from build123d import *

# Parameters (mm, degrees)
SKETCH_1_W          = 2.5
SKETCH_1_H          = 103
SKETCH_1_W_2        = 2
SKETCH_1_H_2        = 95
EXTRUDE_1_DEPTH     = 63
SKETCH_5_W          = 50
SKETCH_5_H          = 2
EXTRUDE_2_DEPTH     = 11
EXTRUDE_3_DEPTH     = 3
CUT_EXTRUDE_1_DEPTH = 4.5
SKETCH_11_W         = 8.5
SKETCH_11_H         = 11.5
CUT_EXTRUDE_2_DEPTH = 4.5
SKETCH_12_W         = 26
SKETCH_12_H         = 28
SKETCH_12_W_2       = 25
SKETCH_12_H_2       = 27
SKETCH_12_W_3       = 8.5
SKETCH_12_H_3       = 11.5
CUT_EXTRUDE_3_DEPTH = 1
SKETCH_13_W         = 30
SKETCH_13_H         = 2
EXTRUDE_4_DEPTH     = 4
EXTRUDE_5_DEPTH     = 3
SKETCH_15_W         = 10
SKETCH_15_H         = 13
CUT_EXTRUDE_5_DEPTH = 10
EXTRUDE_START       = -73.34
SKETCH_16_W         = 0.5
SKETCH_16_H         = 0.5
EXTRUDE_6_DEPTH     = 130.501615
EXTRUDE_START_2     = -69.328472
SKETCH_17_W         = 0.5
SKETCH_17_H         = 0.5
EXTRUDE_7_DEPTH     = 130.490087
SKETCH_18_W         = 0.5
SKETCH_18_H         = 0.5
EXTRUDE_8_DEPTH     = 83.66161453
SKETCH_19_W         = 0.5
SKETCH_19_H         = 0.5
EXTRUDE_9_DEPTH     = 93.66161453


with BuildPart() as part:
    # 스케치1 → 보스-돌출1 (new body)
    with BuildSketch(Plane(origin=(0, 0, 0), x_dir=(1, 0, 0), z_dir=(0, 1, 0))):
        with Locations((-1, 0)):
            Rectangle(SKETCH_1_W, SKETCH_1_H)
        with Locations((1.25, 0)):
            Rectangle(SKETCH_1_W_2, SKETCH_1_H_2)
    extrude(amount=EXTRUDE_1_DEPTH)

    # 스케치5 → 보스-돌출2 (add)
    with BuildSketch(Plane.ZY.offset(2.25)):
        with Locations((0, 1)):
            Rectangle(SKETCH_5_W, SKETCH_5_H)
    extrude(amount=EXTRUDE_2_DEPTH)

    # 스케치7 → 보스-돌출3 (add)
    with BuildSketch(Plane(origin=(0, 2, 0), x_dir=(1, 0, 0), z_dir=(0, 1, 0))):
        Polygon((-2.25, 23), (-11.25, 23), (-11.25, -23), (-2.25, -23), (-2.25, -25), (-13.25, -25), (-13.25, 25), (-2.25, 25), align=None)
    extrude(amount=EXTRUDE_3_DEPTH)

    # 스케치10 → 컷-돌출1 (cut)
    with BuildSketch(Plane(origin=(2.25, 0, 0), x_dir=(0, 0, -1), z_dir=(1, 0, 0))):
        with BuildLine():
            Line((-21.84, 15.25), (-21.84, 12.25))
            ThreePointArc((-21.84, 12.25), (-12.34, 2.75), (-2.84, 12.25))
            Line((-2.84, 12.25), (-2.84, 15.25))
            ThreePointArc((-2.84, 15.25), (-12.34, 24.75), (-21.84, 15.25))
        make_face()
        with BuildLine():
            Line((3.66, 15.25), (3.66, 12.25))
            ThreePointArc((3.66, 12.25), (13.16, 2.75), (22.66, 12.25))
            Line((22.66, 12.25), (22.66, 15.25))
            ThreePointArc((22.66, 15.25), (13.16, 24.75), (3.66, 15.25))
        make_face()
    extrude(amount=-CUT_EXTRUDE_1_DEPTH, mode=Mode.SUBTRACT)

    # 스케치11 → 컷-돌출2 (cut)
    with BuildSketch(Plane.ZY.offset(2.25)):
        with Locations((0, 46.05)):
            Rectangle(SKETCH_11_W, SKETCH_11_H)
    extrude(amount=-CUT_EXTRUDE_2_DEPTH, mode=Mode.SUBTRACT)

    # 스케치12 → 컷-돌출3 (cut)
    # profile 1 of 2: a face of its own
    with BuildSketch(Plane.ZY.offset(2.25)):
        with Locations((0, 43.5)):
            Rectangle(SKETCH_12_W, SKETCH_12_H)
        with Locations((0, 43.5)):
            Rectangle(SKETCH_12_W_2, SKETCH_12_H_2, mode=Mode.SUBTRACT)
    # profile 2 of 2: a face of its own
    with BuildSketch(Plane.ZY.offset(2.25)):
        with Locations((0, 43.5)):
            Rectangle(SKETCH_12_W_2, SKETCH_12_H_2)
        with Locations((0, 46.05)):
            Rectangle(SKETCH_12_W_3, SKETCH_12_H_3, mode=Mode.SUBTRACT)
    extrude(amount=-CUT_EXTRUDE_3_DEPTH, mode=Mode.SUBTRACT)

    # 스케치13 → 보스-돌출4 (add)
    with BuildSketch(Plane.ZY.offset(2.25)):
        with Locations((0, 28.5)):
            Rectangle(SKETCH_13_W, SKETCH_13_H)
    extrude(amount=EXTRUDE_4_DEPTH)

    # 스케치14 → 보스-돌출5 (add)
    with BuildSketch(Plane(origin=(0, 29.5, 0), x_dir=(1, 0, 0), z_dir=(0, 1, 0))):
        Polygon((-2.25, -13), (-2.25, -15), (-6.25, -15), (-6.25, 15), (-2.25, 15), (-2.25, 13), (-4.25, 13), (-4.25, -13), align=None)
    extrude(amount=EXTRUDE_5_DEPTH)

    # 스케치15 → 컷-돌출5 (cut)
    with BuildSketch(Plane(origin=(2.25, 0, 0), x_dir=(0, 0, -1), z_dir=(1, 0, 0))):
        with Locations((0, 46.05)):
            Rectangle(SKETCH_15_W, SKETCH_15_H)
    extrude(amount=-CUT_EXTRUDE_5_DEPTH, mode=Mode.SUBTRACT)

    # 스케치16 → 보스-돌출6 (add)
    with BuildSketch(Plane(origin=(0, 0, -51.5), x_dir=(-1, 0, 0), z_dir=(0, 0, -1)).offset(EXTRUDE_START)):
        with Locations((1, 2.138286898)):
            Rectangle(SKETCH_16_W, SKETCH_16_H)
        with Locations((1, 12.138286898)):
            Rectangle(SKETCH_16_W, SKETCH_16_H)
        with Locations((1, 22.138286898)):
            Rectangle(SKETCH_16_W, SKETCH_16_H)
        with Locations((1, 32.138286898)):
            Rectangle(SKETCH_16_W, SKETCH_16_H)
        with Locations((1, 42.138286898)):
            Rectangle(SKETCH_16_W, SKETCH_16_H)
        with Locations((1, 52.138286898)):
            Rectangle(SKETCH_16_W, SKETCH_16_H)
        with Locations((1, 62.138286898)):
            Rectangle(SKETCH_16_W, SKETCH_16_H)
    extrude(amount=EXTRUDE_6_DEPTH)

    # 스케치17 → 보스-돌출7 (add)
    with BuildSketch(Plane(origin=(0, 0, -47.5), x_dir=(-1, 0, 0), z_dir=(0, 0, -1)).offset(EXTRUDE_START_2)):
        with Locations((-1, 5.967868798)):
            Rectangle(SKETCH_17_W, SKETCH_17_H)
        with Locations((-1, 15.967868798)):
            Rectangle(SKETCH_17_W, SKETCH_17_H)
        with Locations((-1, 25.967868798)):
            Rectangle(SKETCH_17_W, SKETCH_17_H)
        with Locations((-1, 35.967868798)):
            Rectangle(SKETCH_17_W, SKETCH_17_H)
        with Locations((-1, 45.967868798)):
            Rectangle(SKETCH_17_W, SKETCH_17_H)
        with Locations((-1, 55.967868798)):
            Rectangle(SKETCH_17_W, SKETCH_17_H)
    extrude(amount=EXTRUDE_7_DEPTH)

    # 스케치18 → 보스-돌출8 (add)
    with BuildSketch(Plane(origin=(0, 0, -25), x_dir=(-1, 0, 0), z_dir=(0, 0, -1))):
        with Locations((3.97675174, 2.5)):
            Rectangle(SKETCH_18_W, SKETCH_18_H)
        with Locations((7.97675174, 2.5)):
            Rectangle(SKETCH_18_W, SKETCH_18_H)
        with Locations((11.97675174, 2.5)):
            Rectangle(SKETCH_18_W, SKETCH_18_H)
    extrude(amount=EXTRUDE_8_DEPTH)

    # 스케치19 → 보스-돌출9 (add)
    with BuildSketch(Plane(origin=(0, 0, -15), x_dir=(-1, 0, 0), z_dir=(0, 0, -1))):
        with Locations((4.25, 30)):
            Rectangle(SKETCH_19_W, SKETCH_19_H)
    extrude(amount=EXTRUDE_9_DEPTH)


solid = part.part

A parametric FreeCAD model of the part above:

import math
import FreeCAD as App
import Part
import Sketcher
from FreeCAD import Vector


def add_polygon(sketch, points):
    """Adds a closed chain of lines whose ends are joined by coincident constraints."""
    first, n = sketch.GeometryCount, len(points)
    for a, b in zip(points, points[1:] + points[:1]):
        sketch.addGeometry(Part.LineSegment(App.Vector(*a, 0), App.Vector(*b, 0)), False)
    for i in range(n):
        sketch.addConstraint(Sketcher.Constraint("Coincident", first + i, 2, first + (i + 1) % n, 1))

doc = App.newDocument("Part")
params = doc.addObject("Spreadsheet::Sheet", "Params")
for row, (alias, value) in enumerate([
    ("sketch1_width", "2 mm"),
    ("sketch1_height", "103 mm"),
    ("sketch1_height2", "4 mm"),
    ("sketch1_width2", "2.5 mm"),
    ("pad1_length", "63 mm"),
    ("sketch2_width", "2 mm"),
    ("sketch2_height", "50 mm"),
    ("pad2_length", "11 mm"),
    ("sketch3_width", "9 mm"),
    ("sketch3_width2", "11 mm"),
    ("sketch3_height", "2 mm"),
    ("sketch3_height2", "50 mm"),
    ("pad3_length", "3 mm"),
    ("sketch4_radius", "9.5 mm"),
    ("sketch4_width", "3 mm"),
    ("pocket1_length", "4.5 mm"),
    ("sketch5_width", "11.5 mm"),
    ("sketch5_height", "8.5 mm"),
    ("pocket2_length", "4.5 mm"),
    ("sketch6_width", "28 mm"),
    ("sketch6_height", "26 mm"),
    ("sketch6_width2", "11.5 mm"),
    ("sketch6_height2", "8.5 mm"),
    ("pocket3_length", "1 mm"),
    ("sketch7_width", "2 mm"),
    ("sketch7_height", "30 mm"),
    ("pad4_length", "4 mm"),
    ("sketch8_width", "2 mm"),
    ("sketch8_width2", "4 mm"),
    ("sketch8_height", "26 mm"),
    ("pad5_length", "3 mm"),
    ("sketch9_width", "13 mm"),
    ("sketch9_height", "10 mm"),
    ("pocket4_length", "10 mm"),
    ("sketch10_width", "0.5 mm"),
    ("pad6_length", "130.501615 mm"),
    ("sketch11_width", "0.5 mm"),
    ("pad7_length", "130.490087 mm"),
    ("sketch12_width", "0.5 mm"),
    ("pad8_length", "83.661615 mm"),
    ("sketch13_width", "0.5 mm"),
    ("pad9_length", "93.661615 mm"),
], start=1):
    params.set(f"A{row}", alias)
    params.set(f"B{row}", "=" + value)
    params.setAlias(f"B{row}", alias)

body = doc.addObject("PartDesign::Body", "Body")

# Sketch on XZ plane
sketch1 = doc.addObject("Sketcher::SketchObject", "Sketch")
body.addObject(sketch1)
sketch1.AttachmentSupport = (doc.XZ_Plane, [""])
sketch1.MapMode = "FlatFace"
add_polygon(sketch1, [(-2.2, -51.5), (-2.2, 51.5), (0.2, 51.5), (0.2, 47.5), (2.2, 47.5), (2.2, -47.5), (0.2, -47.5), (0.2, -51.5)])  # lines 0-7
sketch1.addConstraint(Sketcher.Constraint("Vertical", 0))
sketch1.addConstraint(Sketcher.Constraint("Horizontal", 1))
sketch1.addConstraint(Sketcher.Constraint("Vertical", 2))
sketch1.addConstraint(Sketcher.Constraint("Horizontal", 3))
sketch1.addConstraint(Sketcher.Constraint("Vertical", 4))
sketch1.addConstraint(Sketcher.Constraint("Horizontal", 5))
sketch1.addConstraint(Sketcher.Constraint("Vertical", 6))
sketch1.addConstraint(Sketcher.Constraint("Horizontal", 7))
sketch1.addConstraint(Sketcher.Constraint("Symmetric", 2, 2, 5, 2, -1))
sketch1.addConstraint(Sketcher.Constraint("Equal", 2, 6))
sketch1.addConstraint(Sketcher.Constraint("DistanceX", 3, 1, 3, 2, 2.0))
sketch1.addConstraint(Sketcher.Constraint("DistanceY", 0, 1, 0, 2, 103.0))
sketch1.addConstraint(Sketcher.Constraint("DistanceY", 2, 2, 2, 1, 4.0))
sketch1.addConstraint(Sketcher.Constraint("DistanceX", 1, 1, 1, 2, 2.5))
sketch1.addConstraint(Sketcher.Constraint("DistanceX", 0, 2, -1, 1, 2.25))
sketch1.setExpression("Constraints[18]", "Params.sketch1_width")
sketch1.setExpression("Constraints[19]", "Params.sketch1_height")
sketch1.setExpression("Constraints[20]", "Params.sketch1_height2")
sketch1.setExpression("Constraints[21]", "Params.sketch1_width2")
pad1 = doc.addObject("PartDesign::Pad", "Pad")
body.addObject(pad1)
pad1.Profile = sketch1
pad1.setExpression("Length", "Params.pad1_length")
pad1.Reversed = True

# Sketch on YZ plane
sketch2 = doc.addObject("Sketcher::SketchObject", "Sketch001")
body.addObject(sketch2)
sketch2.AttachmentSupport = (doc.YZ_Plane, [""])
sketch2.MapMode = "FlatFace"
sketch2.AttachmentOffset = App.Placement(Vector(0, 0, -2.25), App.Rotation())
add_polygon(sketch2, [(2, -25), (0, -25), (0, 25), (2, 25)])  # lines 0-3
sketch2.addConstraint(Sketcher.Constraint("Horizontal", 0))
sketch2.addConstraint(Sketcher.Constraint("Vertical", 1))
sketch2.addConstraint(Sketcher.Constraint("Horizontal", 2))
sketch2.addConstraint(Sketcher.Constraint("Vertical", 3))
sketch2.addConstraint(Sketcher.Constraint("Symmetric", 0, 2, 1, 2, -1, 1))
sketch2.addConstraint(Sketcher.Constraint("DistanceX", 0, 2, 0, 1, 2.0))
sketch2.addConstraint(Sketcher.Constraint("DistanceY", 1, 1, 1, 2, 50.0))
sketch2.setExpression("Constraints[9]", "Params.sketch2_width")
sketch2.setExpression("Constraints[10]", "Params.sketch2_height")
pad2 = doc.addObject("PartDesign::Pad", "Pad001")
body.addObject(pad2)
pad2.Profile = sketch2
pad2.setExpression("Length", "Params.pad2_length")
pad2.Reversed = True

# Sketch on XZ plane
sketch3 = doc.addObject("Sketcher::SketchObject", "Sketch002")
body.addObject(sketch3)
sketch3.AttachmentSupport = (doc.XZ_Plane, [""])
sketch3.MapMode = "FlatFace"
sketch3.AttachmentOffset = App.Placement(Vector(0, 0, -2), App.Rotation())
add_polygon(sketch3, [(-11.2, -23), (-2.2, -23), (-2.2, -25), (-13.2, -25), (-13.2, 25), (-2.2, 25), (-2.2, 23), (-11.2, 23)])  # lines 0-7
sketch3.addConstraint(Sketcher.Constraint("Horizontal", 0))
sketch3.addConstraint(Sketcher.Constraint("Vertical", 1))
sketch3.addConstraint(Sketcher.Constraint("Horizontal", 2))
sketch3.addConstraint(Sketcher.Constraint("Vertical", 3))
sketch3.addConstraint(Sketcher.Constraint("Horizontal", 4))
sketch3.addConstraint(Sketcher.Constraint("Vertical", 5))
sketch3.addConstraint(Sketcher.Constraint("Horizontal", 6))
sketch3.addConstraint(Sketcher.Constraint("Vertical", 7))
sketch3.addConstraint(Sketcher.Constraint("Symmetric", 1, 2, 4, 2, -1))
sketch3.addConstraint(Sketcher.Constraint("Equal", 1, 5))
sketch3.addConstraint(Sketcher.Constraint("DistanceX", 0, 1, 0, 2, 9.0))
sketch3.addConstraint(Sketcher.Constraint("DistanceX", 2, 2, 2, 1, 11.0))
sketch3.addConstraint(Sketcher.Constraint("DistanceY", 1, 2, 1, 1, 2.0))
sketch3.addConstraint(Sketcher.Constraint("DistanceY", 3, 1, 3, 2, 50.0))
sketch3.addConstraint(Sketcher.Constraint("DistanceX", 0, 2, -1, 1, 2.25))
sketch3.setExpression("Constraints[18]", "Params.sketch3_width")
sketch3.setExpression("Constraints[19]", "Params.sketch3_width2")
sketch3.setExpression("Constraints[20]", "Params.sketch3_height")
sketch3.setExpression("Constraints[21]", "Params.sketch3_height2")
pad3 = doc.addObject("PartDesign::Pad", "Pad002")
body.addObject(pad3)
pad3.Profile = sketch3
pad3.setExpression("Length", "Params.pad3_length")
pad3.Reversed = True

# Sketch on YZ plane
sketch4 = doc.addObject("Sketcher::SketchObject", "Sketch003")
body.addObject(sketch4)
sketch4.AttachmentSupport = (doc.YZ_Plane, [""])
sketch4.MapMode = "FlatFace"
sketch4.AttachmentOffset = App.Placement(Vector(0, 0, 2.25), App.Rotation())
sketch4.addGeometry(Part.LineSegment(Vector(15.2, 21.8, 0), Vector(12.2, 21.8, 0)), False)
sketch4.addGeometry(Part.ArcOfCircle(Part.Circle(Vector(12.2, 12.3, 0), Vector(0, 0, 1), 9.5), math.radians(90), math.radians(270)), False)
sketch4.addGeometry(Part.LineSegment(Vector(12.2, 2.8, 0), Vector(15.2, 2.8, 0)), False)
sketch4.addGeometry(Part.ArcOfCircle(Part.Circle(Vector(15.2, 12.3, 0), Vector(0, 0, 1), 9.5), math.radians(-90), math.radians(90)), False)
sketch4.addGeometry(Part.LineSegment(Vector(15.2, -3.7, 0), Vector(12.2, -3.7, 0)), False)
sketch4.addGeometry(Part.ArcOfCircle(Part.Circle(Vector(12.2, -13.2, 0), Vector(0, 0, 1), 9.5), math.radians(90), math.radians(270)), False)
sketch4.addGeometry(Part.LineSegment(Vector(12.2, -22.7, 0), Vector(15.2, -22.7, 0)), False)
sketch4.addGeometry(Part.ArcOfCircle(Part.Circle(Vector(15.2, -13.2, 0), Vector(0, 0, 1), 9.5), math.radians(-90), math.radians(90)), False)
sketch4.addConstraint(Sketcher.Constraint("Tangent", 0, 2, 1, 1))
sketch4.addConstraint(Sketcher.Constraint("Tangent", 1, 2, 2, 1))
sketch4.addConstraint(Sketcher.Constraint("Tangent", 2, 2, 3, 1))
sketch4.addConstraint(Sketcher.Constraint("Tangent", 3, 2, 0, 1))
sketch4.addConstraint(Sketcher.Constraint("Tangent", 4, 2, 5, 1))
sketch4.addConstraint(Sketcher.Constraint("Tangent", 5, 2, 6, 1))
sketch4.addConstraint(Sketcher.Constraint("Tangent", 6, 2, 7, 1))
sketch4.addConstraint(Sketcher.Constraint("Tangent", 7, 2, 4, 1))
sketch4.addConstraint(Sketcher.Constraint("Horizontal", 0))
sketch4.addConstraint(Sketcher.Constraint("Horizontal", 2))
sketch4.addConstraint(Sketcher.Constraint("Horizontal", 4))
sketch4.addConstraint(Sketcher.Constraint("Horizontal", 6))
sketch4.addConstraint(Sketcher.Constraint("Equal", 3, 5))
sketch4.addConstraint(Sketcher.Constraint("Vertical", 1, 3, 5, 3))
sketch4.addConstraint(Sketcher.Constraint("Vertical", 3, 3, 7, 3))
sketch4.addConstraint(Sketcher.Constraint("Radius", 1, 9.5))
sketch4.addConstraint(Sketcher.Constraint("DistanceX", 0, 2, 0, 1, 3.0))
sketch4.addConstraint(Sketcher.Constraint("DistanceY", 5, 3, 0, 2, 35.0))
sketch4.addConstraint(Sketcher.Constraint("DistanceX", -1, 1, 1, 3, 12.25))
sketch4.addConstraint(Sketcher.Constraint("DistanceY", -1, 1, 1, 3, 12.34))
sketch4.setExpression("Constraints[15]", "Params.sketch4_radius")
sketch4.setExpression("Constraints[16]", "Params.sketch4_width")
pocket1 = doc.addObject("PartDesign::Pocket", "Pocket")
body.addObject(pocket1)
pocket1.Profile = sketch4
pocket1.setExpression("Length", "Params.pocket1_length")

# Sketch on YZ plane
sketch5 = doc.addObject("Sketcher::SketchObject", "Sketch004")
body.addObject(sketch5)
sketch5.AttachmentSupport = (doc.YZ_Plane, [""])
sketch5.MapMode = "FlatFace"
sketch5.AttachmentOffset = App.Placement(Vector(0, 0, -2.25), App.Rotation())
add_polygon(sketch5, [(52, -4), (40, -4), (40, 4), (52, 4)])  # lines 0-3
sketch5.addConstraint(Sketcher.Constraint("Horizontal", 0))
sketch5.addConstraint(Sketcher.Constraint("Vertical", 1))
sketch5.addConstraint(Sketcher.Constraint("Horizontal", 2))
sketch5.addConstraint(Sketcher.Constraint("Vertical", 3))
sketch5.addConstraint(Sketcher.Constraint("DistanceX", 0, 2, 0, 1, 11.5))
sketch5.addConstraint(Sketcher.Constraint("DistanceY", 1, 1, 1, 2, 8.5))
sketch5.addConstraint(Sketcher.Constraint("DistanceX", -1, 1, 0, 2, 40.3))
sketch5.addConstraint(Sketcher.Constraint("DistanceY", 0, 2, -1, 1, 4.25))
sketch5.setExpression("Constraints[8]", "Params.sketch5_width")
sketch5.setExpression("Constraints[9]", "Params.sketch5_height")
pocket2 = doc.addObject("PartDesign::Pocket", "Pocket001")
body.addObject(pocket2)
pocket2.Profile = sketch5
pocket2.setExpression("Length", "Params.pocket2_length")
pocket2.Reversed = True

# Sketch on YZ plane
sketch6 = doc.addObject("Sketcher::SketchObject", "Sketch005")
body.addObject(sketch6)
sketch6.AttachmentSupport = (doc.YZ_Plane, [""])
sketch6.MapMode = "FlatFace"
sketch6.AttachmentOffset = App.Placement(Vector(0, 0, -2.25), App.Rotation())
add_polygon(sketch6, [(58, -13), (30, -13), (30, 13), (58, 13)])  # lines 0-3
add_polygon(sketch6, [(40, 4), (40, -4), (52, -4), (52, 4)])  # lines 4-7
sketch6.addConstraint(Sketcher.Constraint("Horizontal", 0))
sketch6.addConstraint(Sketcher.Constraint("Vertical", 1))
sketch6.addConstraint(Sketcher.Constraint("Horizontal", 2))
sketch6.addConstraint(Sketcher.Constraint("Vertical", 3))
sketch6.addConstraint(Sketcher.Constraint("Vertical", 4))
sketch6.addConstraint(Sketcher.Constraint("Horizontal", 5))
sketch6.addConstraint(Sketcher.Constraint("Vertical", 6))
sketch6.addConstraint(Sketcher.Constraint("Horizontal", 7))
sketch6.addConstraint(Sketcher.Constraint("DistanceX", 0, 2, 0, 1, 28.0))
sketch6.addConstraint(Sketcher.Constraint("DistanceY", 1, 1, 1, 2, 26.0))
sketch6.addConstraint(Sketcher.Constraint("DistanceX", 5, 1, 5, 2, 11.5))
sketch6.addConstraint(Sketcher.Constraint("DistanceY", 4, 2, 4, 1, 8.5))
sketch6.addConstraint(Sketcher.Constraint("DistanceY", 0, 2, -1, 1, 13.0))
sketch6.addConstraint(Sketcher.Constraint("DistanceX", -1, 1, 0, 2, 29.5))
sketch6.addConstraint(Sketcher.Constraint("DistanceX", -1, 1, 4, 2, 40.3))
sketch6.addConstraint(Sketcher.Constraint("DistanceY", 4, 2, -1, 1, 4.25))
sketch6.setExpression("Constraints[16]", "Params.sketch6_width")
sketch6.setExpression("Constraints[17]", "Params.sketch6_height")
sketch6.setExpression("Constraints[18]", "Params.sketch6_width2")
sketch6.setExpression("Constraints[19]", "Params.sketch6_height2")
pocket3 = doc.addObject("PartDesign::Pocket", "Pocket002")
body.addObject(pocket3)
pocket3.Profile = sketch6
pocket3.setExpression("Length", "Params.pocket3_length")
pocket3.Reversed = True

# Sketch on YZ plane
sketch7 = doc.addObject("Sketcher::SketchObject", "Sketch006")
body.addObject(sketch7)
sketch7.AttachmentSupport = (doc.YZ_Plane, [""])
sketch7.MapMode = "FlatFace"
sketch7.AttachmentOffset = App.Placement(Vector(0, 0, -2.25), App.Rotation())
add_polygon(sketch7, [(29.5, -15), (27.5, -15), (27.5, 15), (29.5, 15)])  # lines 0-3
sketch7.addConstraint(Sketcher.Constraint("Horizontal", 0))
sketch7.addConstraint(Sketcher.Constraint("Vertical", 1))
sketch7.addConstraint(Sketcher.Constraint("Horizontal", 2))
sketch7.addConstraint(Sketcher.Constraint("Vertical", 3))
sketch7.addConstraint(Sketcher.Constraint("DistanceX", 0, 2, 0, 1, 2.0))
sketch7.addConstraint(Sketcher.Constraint("DistanceY", 1, 1, 1, 2, 30.0))
sketch7.addConstraint(Sketcher.Constraint("DistanceY", 0, 2, -1, 1, 15.0))
sketch7.addConstraint(Sketcher.Constraint("DistanceX", -1, 1, 0, 2, 27.5))
sketch7.setExpression("Constraints[8]", "Params.sketch7_width")
sketch7.setExpression("Constraints[9]", "Params.sketch7_height")
pad4 = doc.addObject("PartDesign::Pad", "Pad003")
body.addObject(pad4)
pad4.Profile = sketch7
pad4.setExpression("Length", "Params.pad4_length")
pad4.Reversed = True

# Sketch on XZ plane
sketch8 = doc.addObject("Sketcher::SketchObject", "Sketch007")
body.addObject(sketch8)
sketch8.AttachmentSupport = (doc.XZ_Plane, [""])
sketch8.MapMode = "FlatFace"
sketch8.AttachmentOffset = App.Placement(Vector(0, 0, -29.5), App.Rotation())
add_polygon(sketch8, [(-2.2, 15), (-2.2, 13), (-4.2, 13), (-4.2, -13), (-2.2, -13), (-2.2, -15), (-6.2, -15), (-6.2, 15)])  # lines 0-7
sketch8.addConstraint(Sketcher.Constraint("Vertical", 0))
sketch8.addConstraint(Sketcher.Constraint("Horizontal", 1))
sketch8.addConstraint(Sketcher.Constraint("Vertical", 2))
sketch8.addConstraint(Sketcher.Constraint("Horizontal", 3))
sketch8.addConstraint(Sketcher.Constraint("Vertical", 4))
sketch8.addConstraint(Sketcher.Constraint("Horizontal", 5))
sketch8.addConstraint(Sketcher.Constraint("Vertical", 6))
sketch8.addConstraint(Sketcher.Constraint("Horizontal", 7))
sketch8.addConstraint(Sketcher.Constraint("Symmetric", 0, 2, 3, 2, -1))
sketch8.addConstraint(Sketcher.Constraint("Equal", 3, 0))
sketch8.addConstraint(Sketcher.Constraint("Equal", 0, 4))
sketch8.addConstraint(Sketcher.Constraint("DistanceX", 1, 2, 1, 1, 2.0))
sketch8.addConstraint(Sketcher.Constraint("DistanceX", 5, 2, 5, 1, 4.0))
sketch8.addConstraint(Sketcher.Constraint("DistanceY", 2, 2, 2, 1, 26.0))
sketch8.addConstraint(Sketcher.Constraint("DistanceX", 0, 2, -1, 1, 2.25))
sketch8.setExpression("Constraints[19]", "Params.sketch8_width")
sketch8.setExpression("Constraints[20]", "Params.sketch8_width2")
sketch8.setExpression("Constraints[21]", "Params.sketch8_height")
pad5 = doc.addObject("PartDesign::Pad", "Pad004")
body.addObject(pad5)
pad5.Profile = sketch8
pad5.setExpression("Length", "Params.pad5_length")
pad5.Reversed = True

# Sketch on YZ plane
sketch9 = doc.addObject("Sketcher::SketchObject", "Sketch008")
body.addObject(sketch9)
sketch9.AttachmentSupport = (doc.YZ_Plane, [""])
sketch9.MapMode = "FlatFace"
sketch9.AttachmentOffset = App.Placement(Vector(0, 0, 2.25), App.Rotation())
add_polygon(sketch9, [(53, 5), (40, 5), (40, -5), (53, -5)])  # lines 0-3
sketch9.addConstraint(Sketcher.Constraint("Horizontal", 0))
sketch9.addConstraint(Sketcher.Constraint("Vertical", 1))
sketch9.addConstraint(Sketcher.Constraint("Horizontal", 2))
sketch9.addConstraint(Sketcher.Constraint("Vertical", 3))
sketch9.addConstraint(Sketcher.Constraint("DistanceX", 0, 2, 0, 1, 13.0))
sketch9.addConstraint(Sketcher.Constraint("DistanceY", 1, 2, 1, 1, 10.0))
sketch9.addConstraint(Sketcher.Constraint("DistanceY", -1, 1, 0, 2, 5.0))
sketch9.addConstraint(Sketcher.Constraint("DistanceX", -1, 1, 0, 2, 39.55))
sketch9.setExpression("Constraints[8]", "Params.sketch9_width")
sketch9.setExpression("Constraints[9]", "Params.sketch9_height")
pocket4 = doc.addObject("PartDesign::Pocket", "Pocket003")
body.addObject(pocket4)
pocket4.Profile = sketch9
pocket4.setExpression("Length", "Params.pocket4_length")

# Sketch on XY plane
sketch10 = doc.addObject("Sketcher::SketchObject", "Sketch009")
body.addObject(sketch10)
sketch10.AttachmentSupport = (doc.XY_Plane, [""])
sketch10.MapMode = "FlatFace"
sketch10.AttachmentOffset = App.Placement(Vector(0, 0, 21.84), App.Rotation())
add_polygon(sketch10, [(-0.75, 2.39), (-0.75, 1.89), (-1.25, 1.89), (-1.25, 2.39)])  # lines 0-3
add_polygon(sketch10, [(-0.75, 12.39), (-0.75, 11.89), (-1.25, 11.89), (-1.25, 12.39)])  # lines 4-7
add_polygon(sketch10, [(-0.75, 22.39), (-0.75, 21.89), (-1.25, 21.89), (-1.25, 22.39)])  # lines 8-11
add_polygon(sketch10, [(-0.75, 32.39), (-0.75, 31.89), (-1.25, 31.89), (-1.25, 32.39)])  # lines 12-15
add_polygon(sketch10, [(-0.75, 42.39), (-0.75, 41.89), (-1.25, 41.89), (-1.25, 42.39)])  # lines 16-19
add_polygon(sketch10, [(-0.75, 52.39), (-0.75, 51.89), (-1.25, 51.89), (-1.25, 52.39)])  # lines 20-23
add_polygon(sketch10, [(-0.75, 62.39), (-0.75, 61.89), (-1.25, 61.89), (-1.25, 62.39)])  # lines 24-27
sketch10.addConstraint(Sketcher.Constraint("Vertical", 0))
sketch10.addConstraint(Sketcher.Constraint("Horizontal", 1))
sketch10.addConstraint(Sketcher.Constraint("Vertical", 2))
sketch10.addConstraint(Sketcher.Constraint("Horizontal", 3))
sketch10.addConstraint(Sketcher.Constraint("Vertical", 4))
sketch10.addConstraint(Sketcher.Constraint("Horizontal", 5))
sketch10.addConstraint(Sketcher.Constraint("Vertical", 6))
sketch10.addConstraint(Sketcher.Constraint("Horizontal", 7))
sketch10.addConstraint(Sketcher.Constraint("Vertical", 8))
sketch10.addConstraint(Sketcher.Constraint("Horizontal", 9))
sketch10.addConstraint(Sketcher.Constraint("Vertical", 10))
sketch10.addConstraint(Sketcher.Constraint("Horizontal", 11))
sketch10.addConstraint(Sketcher.Constraint("Vertical", 12))
sketch10.addConstraint(Sketcher.Constraint("Horizontal", 13))
sketch10.addConstraint(Sketcher.Constraint("Vertical", 14))
sketch10.addConstraint(Sketcher.Constraint("Horizontal", 15))
sketch10.addConstraint(Sketcher.Constraint("Vertical", 16))
sketch10.addConstraint(Sketcher.Constraint("Horizontal", 17))
sketch10.addConstraint(Sketcher.Constraint("Vertical", 18))
sketch10.addConstraint(Sketcher.Constraint("Horizontal", 19))
sketch10.addConstraint(Sketcher.Constraint("Vertical", 20))
sketch10.addConstraint(Sketcher.Constraint("Horizontal", 21))
sketch10.addConstraint(Sketcher.Constraint("Vertical", 22))
sketch10.addConstraint(Sketcher.Constraint("Horizontal", 23))
sketch10.addConstraint(Sketcher.Constraint("Vertical", 24))
sketch10.addConstraint(Sketcher.Constraint("Horizontal", 25))
sketch10.addConstraint(Sketcher.Constraint("Vertical", 26))
sketch10.addConstraint(Sketcher.Constraint("Horizontal", 27))
sketch10.addConstraint(Sketcher.Constraint("Vertical", 3, 2, 4, 2))
sketch10.addConstraint(Sketcher.Constraint("Vertical", 2, 2, 5, 2))
sketch10.addConstraint(Sketcher.Constraint("Vertical", 7, 2, 8, 2))
sketch10.addConstraint(Sketcher.Constraint("Vertical", 6, 2, 9, 2))
sketch10.addConstraint(Sketcher.Constraint("Vertical", 11, 2, 12, 2))
sketch10.addConstraint(Sketcher.Constraint("Vertical", 10, 2, 13, 2))
sketch10.addConstraint(Sketcher.Constraint("Vertical", 15, 2, 16, 2))
sketch10.addConstraint(Sketcher.Constraint("Vertical", 14, 2, 17, 2))
sketch10.addConstraint(Sketcher.Constraint("Vertical", 19, 2, 20, 2))
sketch10.addConstraint(Sketcher.Constraint("Vertical", 18, 2, 21, 2))
sketch10.addConstraint(Sketcher.Constraint("Vertical", 23, 2, 24, 2))
sketch10.addConstraint(Sketcher.Constraint("Vertical", 22, 2, 25, 2))
sketch10.addConstraint(Sketcher.Constraint("Equal", 27, 0))
sketch10.addConstraint(Sketcher.Constraint("Equal", 2, 4))
sketch10.addConstraint(Sketcher.Constraint("Equal", 6, 8))
sketch10.addConstraint(Sketcher.Constraint("Equal", 10, 12))
sketch10.addConstraint(Sketcher.Constraint("Equal", 14, 16))
sketch10.addConstraint(Sketcher.Constraint("Equal", 18, 20))
sketch10.addConstraint(Sketcher.Constraint("Equal", 22, 24))
sketch10.addConstraint(Sketcher.Constraint("DistanceX", 1, 2, 1, 1, 0.5))
sketch10.addConstraint(Sketcher.Constraint("DistanceY", 0, 2, 4, 2, 10.0))
sketch10.addConstraint(Sketcher.Constraint("DistanceY", 4, 2, 8, 2, 10.0))
sketch10.addConstraint(Sketcher.Constraint("DistanceY", 8, 2, 12, 2, 10.0))
sketch10.addConstraint(Sketcher.Constraint("DistanceY", 12, 2, 16, 2, 10.0))
sketch10.addConstraint(Sketcher.Constraint("DistanceY", 16, 2, 20, 2, 10.0))
sketch10.addConstraint(Sketcher.Constraint("DistanceY", 20, 2, 24, 2, 10.0))
sketch10.addConstraint(Sketcher.Constraint("DistanceX", 0, 2, -1, 1, 0.75))
sketch10.addConstraint(Sketcher.Constraint("DistanceY", -1, 1, 0, 2, 1.888287))
sketch10.setExpression("Constraints[75]", "Params.sketch10_width")
pad6 = doc.addObject("PartDesign::Pad", "Pad005")
body.addObject(pad6)
pad6.Profile = sketch10
pad6.setExpression("Length", "Params.pad6_length")
pad6.Reversed = True

# Sketch on XY plane
sketch11 = doc.addObject("Sketcher::SketchObject", "Sketch010")
body.addObject(sketch11)
sketch11.AttachmentSupport = (doc.XY_Plane, [""])
sketch11.MapMode = "FlatFace"
sketch11.AttachmentOffset = App.Placement(Vector(0, 0, 21.828472), App.Rotation())
add_polygon(sketch11, [(1.2, 6.2), (1.2, 5.7), (0.8, 5.7), (0.8, 6.2)])  # lines 0-3
add_polygon(sketch11, [(1.2, 16.2), (1.2, 15.7), (0.8, 15.7), (0.8, 16.2)])  # lines 4-7
add_polygon(sketch11, [(1.2, 26.2), (1.2, 25.7), (0.8, 25.7), (0.8, 26.2)])  # lines 8-11
add_polygon(sketch11, [(1.2, 36.2), (1.2, 35.7), (0.8, 35.7), (0.8, 36.2)])  # lines 12-15
add_polygon(sketch11, [(1.2, 46.2), (1.2, 45.7), (0.8, 45.7), (0.8, 46.2)])  # lines 16-19
add_polygon(sketch11, [(1.2, 56.2), (1.2, 55.7), (0.8, 55.7), (0.8, 56.2)])  # lines 20-23
sketch11.addConstraint(Sketcher.Constraint("Vertical", 0))
sketch11.addConstraint(Sketcher.Constraint("Horizontal", 1))
sketch11.addConstraint(Sketcher.Constraint("Vertical", 2))
sketch11.addConstraint(Sketcher.Constraint("Horizontal", 3))
sketch11.addConstraint(Sketcher.Constraint("Vertical", 4))
sketch11.addConstraint(Sketcher.Constraint("Horizontal", 5))
sketch11.addConstraint(Sketcher.Constraint("Vertical", 6))
sketch11.addConstraint(Sketcher.Constraint("Horizontal", 7))
sketch11.addConstraint(Sketcher.Constraint("Vertical", 8))
sketch11.addConstraint(Sketcher.Constraint("Horizontal", 9))
sketch11.addConstraint(Sketcher.Constraint("Vertical", 10))
sketch11.addConstraint(Sketcher.Constraint("Horizontal", 11))
sketch11.addConstraint(Sketcher.Constraint("Vertical", 12))
sketch11.addConstraint(Sketcher.Constraint("Horizontal", 13))
sketch11.addConstraint(Sketcher.Constraint("Vertical", 14))
sketch11.addConstraint(Sketcher.Constraint("Horizontal", 15))
sketch11.addConstraint(Sketcher.Constraint("Vertical", 16))
sketch11.addConstraint(Sketcher.Constraint("Horizontal", 17))
sketch11.addConstraint(Sketcher.Constraint("Vertical", 18))
sketch11.addConstraint(Sketcher.Constraint("Horizontal", 19))
sketch11.addConstraint(Sketcher.Constraint("Vertical", 20))
sketch11.addConstraint(Sketcher.Constraint("Horizontal", 21))
sketch11.addConstraint(Sketcher.Constraint("Vertical", 22))
sketch11.addConstraint(Sketcher.Constraint("Horizontal", 23))
sketch11.addConstraint(Sketcher.Constraint("Vertical", 3, 2, 4, 2))
sketch11.addConstraint(Sketcher.Constraint("Vertical", 2, 2, 5, 2))
sketch11.addConstraint(Sketcher.Constraint("Vertical", 7, 2, 8, 2))
sketch11.addConstraint(Sketcher.Constraint("Vertical", 6, 2, 9, 2))
sketch11.addConstraint(Sketcher.Constraint("Vertical", 11, 2, 12, 2))
sketch11.addConstraint(Sketcher.Constraint("Vertical", 10, 2, 13, 2))
sketch11.addConstraint(Sketcher.Constraint("Vertical", 15, 2, 16, 2))
sketch11.addConstraint(Sketcher.Constraint("Vertical", 14, 2, 17, 2))
sketch11.addConstraint(Sketcher.Constraint("Vertical", 19, 2, 20, 2))
sketch11.addConstraint(Sketcher.Constraint("Vertical", 18, 2, 21, 2))
sketch11.addConstraint(Sketcher.Constraint("Equal", 23, 0))
sketch11.addConstraint(Sketcher.Constraint("Equal", 2, 4))
sketch11.addConstraint(Sketcher.Constraint("Equal", 6, 8))
sketch11.addConstraint(Sketcher.Constraint("Equal", 10, 12))
sketch11.addConstraint(Sketcher.Constraint("Equal", 14, 16))
sketch11.addConstraint(Sketcher.Constraint("Equal", 18, 20))
sketch11.addConstraint(Sketcher.Constraint("DistanceX", 1, 2, 1, 1, 0.5))
sketch11.addConstraint(Sketcher.Constraint("DistanceY", 0, 2, 4, 2, 10.0))
sketch11.addConstraint(Sketcher.Constraint("DistanceY", 4, 2, 8, 2, 10.0))
sketch11.addConstraint(Sketcher.Constraint("DistanceY", 8, 2, 12, 2, 10.0))
sketch11.addConstraint(Sketcher.Constraint("DistanceY", 12, 2, 16, 2, 10.0))
sketch11.addConstraint(Sketcher.Constraint("DistanceY", 16, 2, 20, 2, 10.0))
sketch11.addConstraint(Sketcher.Constraint("DistanceX", -1, 1, 0, 2, 1.25))
sketch11.addConstraint(Sketcher.Constraint("DistanceY", -1, 1, 0, 2, 5.717869))
sketch11.setExpression("Constraints[64]", "Params.sketch11_width")
pad7 = doc.addObject("PartDesign::Pad", "Pad006")
body.addObject(pad7)
pad7.Profile = sketch11
pad7.setExpression("Length", "Params.pad7_length")
pad7.Reversed = True

# Sketch on XY plane
sketch12 = doc.addObject("Sketcher::SketchObject", "Sketch011")
body.addObject(sketch12)
sketch12.AttachmentSupport = (doc.XY_Plane, [""])
sketch12.MapMode = "FlatFace"
sketch12.AttachmentOffset = App.Placement(Vector(0, 0, -25), App.Rotation())
add_polygon(sketch12, [(-3.73, 2.75), (-3.73, 2.25), (-4.23, 2.25), (-4.23, 2.75)])  # lines 0-3
add_polygon(sketch12, [(-7.73, 2.75), (-7.73, 2.25), (-8.23, 2.25), (-8.23, 2.75)])  # lines 4-7
add_polygon(sketch12, [(-11.73, 2.75), (-11.73, 2.25), (-12.23, 2.25), (-12.23, 2.75)])  # lines 8-11
sketch12.addConstraint(Sketcher.Constraint("Vertical", 0))
sketch12.addConstraint(Sketcher.Constraint("Horizontal", 1))
sketch12.addConstraint(Sketcher.Constraint("Vertical", 2))
sketch12.addConstraint(Sketcher.Constraint("Horizontal", 3))
sketch12.addConstraint(Sketcher.Constraint("Vertical", 4))
sketch12.addConstraint(Sketcher.Constraint("Horizontal", 5))
sketch12.addConstraint(Sketcher.Constraint("Vertical", 6))
sketch12.addConstraint(Sketcher.Constraint("Horizontal", 7))
sketch12.addConstraint(Sketcher.Constraint("Vertical", 8))
sketch12.addConstraint(Sketcher.Constraint("Horizontal", 9))
sketch12.addConstraint(Sketcher.Constraint("Vertical", 10))
sketch12.addConstraint(Sketcher.Constraint("Horizontal", 11))
sketch12.addConstraint(Sketcher.Constraint("Horizontal", 1, 2, 4, 2))
sketch12.addConstraint(Sketcher.Constraint("Horizontal", 3, 2, 6, 2))
sketch12.addConstraint(Sketcher.Constraint("Horizontal", 5, 2, 8, 2))
sketch12.addConstraint(Sketcher.Constraint("Horizontal", 7, 2, 10, 2))
sketch12.addConstraint(Sketcher.Constraint("Equal", 3, 5))
sketch12.addConstraint(Sketcher.Constraint("Equal", 7, 9))
sketch12.addConstraint(Sketcher.Constraint("Equal", 11, 0))
sketch12.addConstraint(Sketcher.Constraint("DistanceX", 1, 2, 1, 1, 0.5))
sketch12.addConstraint(Sketcher.Constraint("DistanceX", 4, 2, 0, 2, 4.0))
sketch12.addConstraint(Sketcher.Constraint("DistanceX", 8, 2, 4, 2, 4.0))
sketch12.addConstraint(Sketcher.Constraint("DistanceY", -1, 1, 0, 2, 2.25))
sketch12.addConstraint(Sketcher.Constraint("DistanceX", 0, 2, -1, 1, 3.726752))
sketch12.setExpression("Constraints[31]", "Params.sketch12_width")
pad8 = doc.addObject("PartDesign::Pad", "Pad007")
body.addObject(pad8)
pad8.Profile = sketch12
pad8.setExpression("Length", "Params.pad8_length")
pad8.Reversed = True

# Sketch on XY plane
sketch13 = doc.addObject("Sketcher::SketchObject", "Sketch012")
body.addObject(sketch13)
sketch13.AttachmentSupport = (doc.XY_Plane, [""])
sketch13.MapMode = "FlatFace"
sketch13.AttachmentOffset = App.Placement(Vector(0, 0, -15), App.Rotation())
add_polygon(sketch13, [(-4, 30.2), (-4, 29.8), (-4.5, 29.8), (-4.5, 30.2)])  # lines 0-3
sketch13.addConstraint(Sketcher.Constraint("Vertical", 0))
sketch13.addConstraint(Sketcher.Constraint("Horizontal", 1))
sketch13.addConstraint(Sketcher.Constraint("Vertical", 2))
sketch13.addConstraint(Sketcher.Constraint("Horizontal", 3))
sketch13.addConstraint(Sketcher.Constraint("Equal", 3, 0))
sketch13.addConstraint(Sketcher.Constraint("DistanceX", 1, 2, 1, 1, 0.5))
sketch13.addConstraint(Sketcher.Constraint("DistanceX", 0, 2, -1, 1, 4.0))
sketch13.addConstraint(Sketcher.Constraint("DistanceY", -1, 1, 0, 2, 29.75))
sketch13.setExpression("Constraints[9]", "Params.sketch13_width")
pad9 = doc.addObject("PartDesign::Pad", "Pad008")
body.addObject(pad9)
pad9.Profile = sketch13
pad9.setExpression("Length", "Params.pad9_length")
pad9.Reversed = True

doc.recompute()
